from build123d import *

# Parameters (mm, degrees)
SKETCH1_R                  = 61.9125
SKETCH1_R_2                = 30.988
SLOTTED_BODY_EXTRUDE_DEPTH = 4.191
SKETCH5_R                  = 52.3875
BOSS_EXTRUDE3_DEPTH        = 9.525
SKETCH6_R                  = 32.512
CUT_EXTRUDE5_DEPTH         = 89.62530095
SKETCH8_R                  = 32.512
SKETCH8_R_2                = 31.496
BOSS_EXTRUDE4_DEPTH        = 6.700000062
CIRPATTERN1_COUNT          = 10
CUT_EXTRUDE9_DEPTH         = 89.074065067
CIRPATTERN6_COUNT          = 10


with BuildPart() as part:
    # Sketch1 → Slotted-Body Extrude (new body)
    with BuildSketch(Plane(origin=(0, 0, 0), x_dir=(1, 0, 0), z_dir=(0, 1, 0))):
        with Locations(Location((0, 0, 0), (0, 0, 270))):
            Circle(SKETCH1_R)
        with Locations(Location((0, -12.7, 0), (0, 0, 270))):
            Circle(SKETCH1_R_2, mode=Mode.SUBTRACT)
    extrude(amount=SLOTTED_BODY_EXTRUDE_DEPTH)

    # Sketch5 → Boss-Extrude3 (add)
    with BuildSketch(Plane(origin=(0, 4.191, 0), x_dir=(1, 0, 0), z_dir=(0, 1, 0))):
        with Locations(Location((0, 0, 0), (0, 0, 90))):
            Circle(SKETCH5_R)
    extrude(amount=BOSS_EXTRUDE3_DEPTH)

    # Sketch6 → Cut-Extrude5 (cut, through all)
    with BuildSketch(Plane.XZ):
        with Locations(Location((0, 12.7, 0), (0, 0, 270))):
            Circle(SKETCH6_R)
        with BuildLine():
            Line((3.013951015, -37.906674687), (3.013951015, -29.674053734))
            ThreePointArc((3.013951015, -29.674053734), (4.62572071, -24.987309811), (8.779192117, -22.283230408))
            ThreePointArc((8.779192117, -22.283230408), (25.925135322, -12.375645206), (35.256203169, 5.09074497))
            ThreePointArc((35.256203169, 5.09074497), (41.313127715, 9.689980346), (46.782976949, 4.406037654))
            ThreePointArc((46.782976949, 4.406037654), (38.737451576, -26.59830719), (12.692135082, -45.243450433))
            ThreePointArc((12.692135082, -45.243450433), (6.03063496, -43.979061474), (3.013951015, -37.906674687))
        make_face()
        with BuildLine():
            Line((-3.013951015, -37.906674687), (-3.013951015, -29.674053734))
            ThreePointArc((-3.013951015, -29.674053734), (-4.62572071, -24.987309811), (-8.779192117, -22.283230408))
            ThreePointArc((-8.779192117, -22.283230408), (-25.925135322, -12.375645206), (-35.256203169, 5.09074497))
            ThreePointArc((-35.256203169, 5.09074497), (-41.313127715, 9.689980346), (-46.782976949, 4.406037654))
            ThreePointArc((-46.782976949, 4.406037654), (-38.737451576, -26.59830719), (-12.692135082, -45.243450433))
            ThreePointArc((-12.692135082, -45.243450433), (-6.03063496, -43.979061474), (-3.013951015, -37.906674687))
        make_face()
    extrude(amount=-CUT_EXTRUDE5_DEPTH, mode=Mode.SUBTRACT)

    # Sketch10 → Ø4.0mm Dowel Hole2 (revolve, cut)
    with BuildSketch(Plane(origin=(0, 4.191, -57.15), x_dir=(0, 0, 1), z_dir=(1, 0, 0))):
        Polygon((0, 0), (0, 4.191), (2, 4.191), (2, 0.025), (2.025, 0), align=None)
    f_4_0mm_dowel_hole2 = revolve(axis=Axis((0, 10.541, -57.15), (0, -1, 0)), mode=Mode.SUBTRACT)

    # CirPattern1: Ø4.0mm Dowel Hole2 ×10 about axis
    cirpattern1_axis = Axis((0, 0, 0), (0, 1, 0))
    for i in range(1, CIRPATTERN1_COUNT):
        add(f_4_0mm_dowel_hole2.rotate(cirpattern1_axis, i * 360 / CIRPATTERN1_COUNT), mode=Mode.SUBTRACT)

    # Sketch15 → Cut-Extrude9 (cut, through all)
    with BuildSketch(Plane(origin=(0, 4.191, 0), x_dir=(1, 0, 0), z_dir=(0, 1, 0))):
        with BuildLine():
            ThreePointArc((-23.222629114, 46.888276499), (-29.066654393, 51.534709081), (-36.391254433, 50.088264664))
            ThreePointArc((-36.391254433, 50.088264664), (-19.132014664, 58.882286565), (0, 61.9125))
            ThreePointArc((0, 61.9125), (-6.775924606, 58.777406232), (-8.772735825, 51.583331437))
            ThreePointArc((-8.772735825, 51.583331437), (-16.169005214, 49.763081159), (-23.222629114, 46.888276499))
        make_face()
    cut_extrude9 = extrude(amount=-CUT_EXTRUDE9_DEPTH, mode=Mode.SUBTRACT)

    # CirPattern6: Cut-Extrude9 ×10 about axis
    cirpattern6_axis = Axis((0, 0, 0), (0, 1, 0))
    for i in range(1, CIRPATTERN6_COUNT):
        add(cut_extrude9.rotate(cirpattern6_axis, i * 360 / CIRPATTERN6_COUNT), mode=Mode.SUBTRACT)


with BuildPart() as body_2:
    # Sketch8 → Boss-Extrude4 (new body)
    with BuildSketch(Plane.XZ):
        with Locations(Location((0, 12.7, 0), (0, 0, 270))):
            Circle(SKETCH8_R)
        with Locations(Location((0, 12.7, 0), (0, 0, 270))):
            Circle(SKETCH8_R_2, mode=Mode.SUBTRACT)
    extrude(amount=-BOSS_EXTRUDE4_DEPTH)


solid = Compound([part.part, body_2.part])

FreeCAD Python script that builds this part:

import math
import FreeCAD as App
import Part
import Sketcher
Q = App.Units.Quantity


def add_polygon(sketch, points):
    """Adds a closed chain of lines whose ends are joined by coincident constraints."""
    first, n = sketch.GeometryCount, len(points)
    for a, b in zip(points, points[1:] + points[:1]):
        sketch.addGeometry(Part.LineSegment(App.Vector(*a, 0), App.Vector(*b, 0)), False)
    for i in range(n):
        sketch.addConstraint(Sketcher.Constraint("Coincident", first + i, 2, first + (i + 1) % n, 1))

doc = App.newDocument("Part")
params = doc.addObject("Spreadsheet::Sheet", "Params")
for row, (alias, value) in enumerate([
    ("sketch1_diameter", "2.44 in"),
    ("sketch1_diameter2", "4.875 in"),
    ("pad1_length", "0.165 in"),
    ("sketch2_diameter", "4.125 in"),
    ("pad2_length", "0.375 in"),
    ("sketch3_radius", "0.3 in"),
    ("sketch3_diameter", "2.56 in"),
    ("sketch3_radius2", "1.85 in"),
    ("sketch3_radius3", "0.23 in"),
    ("sketch3_radius4", "1.42 in"),
    ("sketch4_width", "0.165 in"),
    ("groove_angle", "360 deg"),
    ("sketch5_radius", "0.35 in"),
    ("sketch5_radius2", "2.06 in"),
    ("sketch5_radius3", "2.4375 in"),
    ("sketch6_diameter", "2.56 in"),
    ("sketch6_diameter2", "2.48 in"),
    ("pad3_length", "6.7 mm"),
], start=1):
    params.set(f"A{row}", alias)
    params.set(f"B{row}", "=" + value)
    params.setAlias(f"B{row}", alias)

body = doc.addObject("PartDesign::Body", "Body")

sketch1 = body.newObject("Sketcher::SketchObject", "Sketch")
sketch1.AttachmentSupport = (doc.getObject("XZ_Plane"), [""])
sketch1.MapMode = "FlatFace"
sketch1.addGeometry(Part.Circle(App.Vector(0, 0, 0), App.Vector(0, 0, 1), 62), False)
sketch1.addGeometry(Part.Circle(App.Vector(0, 13, 0), App.Vector(0, 0, 1), 31), False)
sketch1.addConstraint(Sketcher.Constraint("Coincident", 0, 3, -1, 1))
sketch1.addConstraint(Sketcher.Constraint("PointOnObject", 1, 3, -2))
sketch1.addConstraint(Sketcher.Constraint("Diameter", 1, Q("2.44 in")))
sketch1.addConstraint(Sketcher.Constraint("Diameter", 0, Q("4.875 in")))
sketch1.addConstraint(Sketcher.Constraint("DistanceY", -1, 1, 1, 3, Q("0.5 in")))
sketch1.setExpression("Constraints[2]", "Params.sketch1_diameter")
sketch1.setExpression("Constraints[3]", "Params.sketch1_diameter2")
pad1 = body.newObject("PartDesign::Pad", "Pad")
pad1.Profile = sketch1
pad1.setExpression("Length", "Params.pad1_length")
pad1.Reversed = True

sketch2 = body.newObject("Sketcher::SketchObject", "Sketch001")
sketch2.AttachmentSupport = (doc.getObject("XZ_Plane"), [""])
sketch2.MapMode = "FlatFace"
sketch2.AttachmentOffset = App.Placement(App.Vector(0, 0, -0.165 * 25.4), App.Rotation())
sketch2.addGeometry(Part.Circle(App.Vector(0, 0, 0), App.Vector(0, 0, 1), 52), False)
sketch2.addConstraint(Sketcher.Constraint("Coincident", 0, 3, -1, 1))
sketch2.addConstraint(Sketcher.Constraint("Diameter", 0, Q("4.125 in")))
sketch2.setExpression("Constraints[1]", "Params.sketch2_diameter")
pad2 = body.newObject("PartDesign::Pad", "Pad001")
pad2.Profile = sketch2
pad2.setExpression("Length", "Params.pad2_length")
pad2.Reversed = True

sketch3 = body.newObject("Sketcher::SketchObject", "Sketch002")
sketch3.AttachmentSupport = (doc.getObject("XZ_Plane"), [""])
sketch3.MapMode = "FlatFace"
sketch3.addGeometry(Part.Circle(App.Vector(0, 13, 0), App.Vector(0, 0, 1), 33), False)
sketch3.addGeometry(Part.LineSegment(App.Vector(3, -30, 0), App.Vector(3, -38, 0)), False)
sketch3.addGeometry(Part.ArcOfCircle(Part.Circle(App.Vector(11, -38, 0), App.Vector(0, 0, 1), 8), math.radians(-180), math.radians(-74)), False)
sketch3.addGeometry(Part.ArcOfCircle(Part.Circle(App.Vector(0, 0, 0), App.Vector(0, 0, 1), 47), math.radians(-74), math.radians(5)), False)
sketch3.addGeometry(Part.ArcOfCircle(Part.Circle(App.Vector(41, 4, 0), App.Vector(0, 0, 1), 6), math.radians(5), math.radians(168)), False)
sketch3.addGeometry(Part.ArcOfCircle(Part.Circle(App.Vector(0, 13, 0), App.Vector(0, 0, 1), 36), math.radians(-76), math.radians(-12)), False)
sketch3.addGeometry(Part.ArcOfCircle(Part.Circle(App.Vector(11, -30, 0), App.Vector(0, 0, 1), 8), math.radians(104), math.radians(180)), False)
sketch3.addGeometry(Part.LineSegment(App.Vector(-3, -38, 0), App.Vector(-3, -30, 0)), False)
sketch3.addGeometry(Part.ArcOfCircle(Part.Circle(App.Vector(-11, -30, 0), App.Vector(0, 0, 1), 8), math.radians(0), math.radians(76)), False)
sketch3.addGeometry(Part.ArcOfCircle(Part.Circle(App.Vector(0, 13, 0), App.Vector(0, 0, 1), 36), math.radians(-168), math.radians(-104)), False)
sketch3.addGeometry(Part.ArcOfCircle(Part.Circle(App.Vector(-41, 4, 0), App.Vector(0, 0, 1), 6), math.radians(12), math.radians(175)), False)
sketch3.addGeometry(Part.ArcOfCircle(Part.Circle(App.Vector(0, 0, 0), App.Vector(0, 0, 1), 47), math.radians(175), math.radians(254)), False)
sketch3.addGeometry(Part.ArcOfCircle(Part.Circle(App.Vector(-11, -38, 0), App.Vector(0, 0, 1), 8), math.radians(-106), math.radians(0)), False)
sketch3.addConstraint(Sketcher.Constraint("Tangent", 1, 2, 2, 1))
sketch3.addConstraint(Sketcher.Constraint("Tangent", 2, 2, 3, 1))
sketch3.addConstraint(Sketcher.Constraint("Tangent", 3, 2, 4, 1))
sketch3.addConstraint(Sketcher.Constraint("Tangent", 4, 2, 5, 2))
sketch3.addConstraint(Sketcher.Constraint("Tangent", 5, 1, 6, 1))
sketch3.addConstraint(Sketcher.Constraint("Tangent", 6, 2, 1, 1))
sketch3.addConstraint(Sketcher.Constraint("Tangent", 7, 2, 8, 1))
sketch3.addConstraint(Sketcher.Constraint("Tangent", 8, 2, 9, 2))
sketch3.addConstraint(Sketcher.Constraint("Tangent", 9, 1, 10, 1))
sketch3.addConstraint(Sketcher.Constraint("Tangent", 10, 2, 11, 1))
sketch3.addConstraint(Sketcher.Constraint("Tangent", 11, 2, 12, 1))
sketch3.addConstraint(Sketcher.Constraint("Tangent", 12, 2, 7, 1))
sketch3.addConstraint(Sketcher.Constraint("Vertical", 1))
sketch3.addConstraint(Sketcher.Constraint("Vertical", 7))
sketch3.addConstraint(Sketcher.Constraint("Coincident", 3, 3, -1, 1))
sketch3.addConstraint(Sketcher.Constraint("Coincident", 11, 3, -1, 1))
sketch3.addConstraint(Sketcher.Constraint("Coincident", 5, 3, 0, 3))
sketch3.addConstraint(Sketcher.Constraint("Coincident", 9, 3, 0, 3))
sketch3.addConstraint(Sketcher.Constraint("Equal", 2, 6))
sketch3.addConstraint(Sketcher.Constraint("Equal", 6, 8))
sketch3.addConstraint(Sketcher.Constraint("Equal", 5, 9))
sketch3.addConstraint(Sketcher.Constraint("Equal", 4, 10))
sketch3.addConstraint(Sketcher.Constraint("Equal", 3, 11))
sketch3.addConstraint(Sketcher.Constraint("Equal", 8, 12))
sketch3.addConstraint(Sketcher.Constraint("Symmetric", 6, 3, 8, 3, -2))
sketch3.addConstraint(Sketcher.Constraint("Radius", 2, Q("0.3 in")))
sketch3.addConstraint(Sketcher.Constraint("Diameter", 0, Q("2.56 in")))
sketch3.addConstraint(Sketcher.Constraint("Radius", 3, Q("1.85 in")))
sketch3.addConstraint(Sketcher.Constraint("Radius", 4, Q("0.23 in")))
sketch3.addConstraint(Sketcher.Constraint("Radius", 5, Q("1.42 in")))
sketch3.addConstraint(Sketcher.Constraint("DistanceY", -1, 1, 0, 3, Q("0.5 in")))
sketch3.addConstraint(Sketcher.Constraint("DistanceY", 1, 2, 1, 1, Q("8.232621 mm")))
sketch3.setExpression("Constraints[25]", "Params.sketch3_radius")
sketch3.setExpression("Constraints[26]", "Params.sketch3_diameter")
sketch3.setExpression("Constraints[27]", "Params.sketch3_radius2")
sketch3.setExpression("Constraints[28]", "Params.sketch3_radius3")
sketch3.setExpression("Constraints[29]", "Params.sketch3_radius4")
pocket1 = body.newObject("PartDesign::Pocket", "Pocket")
pocket1.Profile = sketch3
pocket1.Type = "ThroughAll"

sketch4 = body.newObject("Sketcher::SketchObject", "Sketch003")
sketch4.AttachmentSupport = (doc.getObject("YZ_Plane"), [""])
sketch4.MapMode = "FlatFace"
add_polygon(sketch4, [(0, -57.15), (4.191, -57.15), (4.191, -55.125), (4.166, -55.15), (0, -55.15)])
sketch4.addGeometry(Part.LineSegment(App.Vector(4.191, -57.15, 0), App.Vector(0, -57.15, 0)), True)
sketch4.addConstraint(Sketcher.Constraint("Horizontal", 0))
sketch4.addConstraint(Sketcher.Constraint("Vertical", 1))
sketch4.addConstraint(Sketcher.Constraint("Horizontal", 3))
sketch4.addConstraint(Sketcher.Constraint("Vertical", 4))
sketch4.addConstraint(Sketcher.Constraint("Horizontal", 5))
sketch4.addConstraint(Sketcher.Constraint("Coincident", 5, 1, 0, 2))
sketch4.addConstraint(Sketcher.Constraint("PointOnObject", 3, 2, -2))
sketch4.addConstraint(Sketcher.Constraint("PointOnObject", 5, 2, -2))
sketch4.addConstraint(Sketcher.Constraint("Angle", 2, Q("-135 deg")))
sketch4.addConstraint(Sketcher.Constraint("DistanceX", 0, 1, 0, 2, Q("0.165 in")))
sketch4.addConstraint(Sketcher.Constraint("DistanceY", 0, 2, -1, 1, Q("2.25 in")))
sketch4.addConstraint(Sketcher.Constraint("DistanceX", 3, 2, 3, 1, Q("4.166 mm")))
sketch4.addConstraint(Sketcher.Constraint("DistanceY", 1, 1, 1, 2, Q("2.025 mm")))
sketch4.setExpression("Constraints[14]", "Params.sketch4_width")
groove = body.newObject("PartDesign::Groove", "Groove")
groove.Profile = sketch4
groove.ReferenceAxis = (sketch4, ["Axis0"])
groove.setExpression("Angle", "Params.groove_angle")
doc.recompute()

polarpattern = body.newObject("PartDesign::PolarPattern", "PolarPattern")
polarpattern.Originals = [groove]
polarpattern.Axis = (doc.getObject("Y_Axis"), [""])
polarpattern.Angle = 360
polarpattern.Occurrences = 10
body.Tip = polarpattern

sketch5 = body.newObject("Sketcher::SketchObject", "Sketch004")
sketch5.AttachmentSupport = (doc.getObject("XZ_Plane"), [""])
sketch5.MapMode = "FlatFace"
sketch5.AttachmentOffset = App.Placement(App.Vector(0, 0, -0.165 * 25.4), App.Rotation())
sketch5.addGeometry(Part.ArcOfCircle(Part.Circle(App.Vector(-31, -43, 0), App.Vector(0, 0, 1), 9), math.radians(-126), math.radians(-27)), False)
sketch5.addGeometry(Part.ArcOfCircle(Part.Circle(App.Vector(0, 0, 0), App.Vector(0, 0, 1), 52), math.radians(-116.35), math.radians(-99.65)), False)
sketch5.addGeometry(Part.ArcOfCircle(Part.Circle(App.Vector(0, -53, 0), App.Vector(0, 0, 1), 9), math.radians(171), math.radians(270)), False)
sketch5.addGeometry(Part.ArcOfCircle(Part.Circle(App.Vector(0, 0, 0), App.Vector(0, 0, 1), 62), math.radians(-126), math.radians(-90)), False)
sketch5.addConstraint(Sketcher.Constraint("Coincident", 0, 2, 1, 1))
sketch5.addConstraint(Sketcher.Constraint("Coincident", 1, 2, 2, 1))
sketch5.addConstraint(Sketcher.Constraint("Tangent", 2, 2, 3, 2))
sketch5.addConstraint(Sketcher.Constraint("Tangent", 3, 1, 0, 1))
sketch5.addConstraint(Sketcher.Constraint("Coincident", 1, 3, -1, 1))
sketch5.addConstraint(Sketcher.Constraint("Coincident", 3, 3, -1, 1))
sketch5.addConstraint(Sketcher.Constraint("Equal", 0, 2))
sketch5.addConstraint(Sketcher.Constraint("PointOnObject", 2, 3, -2))
sketch5.addConstraint(Sketcher.Constraint("Radius", 0, Q("0.35 in")))
sketch5.addConstraint(Sketcher.Constraint("Radius", 1, Q("2.06 in")))
sketch5.addConstraint(Sketcher.Constraint("Radius", 3, Q("2.4375 in")))
sketch5.addConstraint(Sketcher.Constraint("DistanceX", 0, 2, -1, 1, Q("23.222629 mm")))
sketch5.setExpression("Constraints[8]", "Params.sketch5_radius")
sketch5.setExpression("Constraints[9]", "Params.sketch5_radius2")
sketch5.setExpression("Constraints[10]", "Params.sketch5_radius3")
pocket2 = body.newObject("PartDesign::Pocket", "Pocket001")
pocket2.Profile = sketch5
pocket2.Type = "ThroughAll"
pocket2.Reversed = True
doc.recompute()

polarpattern2 = body.newObject("PartDesign::PolarPattern", "PolarPattern001")
polarpattern2.Originals = [pocket2]
polarpattern2.Axis = (doc.getObject("Y_Axis"), [""])
polarpattern2.Angle = 360
polarpattern2.Occurrences = 10
body.Tip = polarpattern2
body2 = doc.addObject("PartDesign::Body", "Body001")

sketch6 = body2.newObject("Sketcher::SketchObject", "Sketch005")
sketch6.AttachmentSupport = (doc.getObject("XZ_Plane001"), [""])
sketch6.MapMode = "FlatFace"
sketch6.addGeometry(Part.Circle(App.Vector(0, 13, 0), App.Vector(0, 0, 1), 33), False)
sketch6.addGeometry(Part.Circle(App.Vector(0, 13, 0), App.Vector(0, 0, 1), 31), False)
sketch6.addConstraint(Sketcher.Constraint("Coincident", 1, 3, 0, 3))
sketch6.addConstraint(Sketcher.Constraint("PointOnObject", 0, 3, -2))
sketch6.addConstraint(Sketcher.Constraint("Diameter", 0, Q("2.56 in")))
sketch6.addConstraint(Sketcher.Constraint("Diameter", 1, Q("2.48 in")))
sketch6.addConstraint(Sketcher.Constraint("DistanceY", -1, 1, 0, 3, Q("0.5 in")))
sketch6.setExpression("Constraints[2]", "Params.sketch6_diameter")
sketch6.setExpression("Constraints[3]", "Params.sketch6_diameter2")
pad3 = body2.newObject("PartDesign::Pad", "Pad002")
pad3.Profile = sketch6
pad3.setExpression("Length", "Params.pad3_length")
pad3.Reversed = True

doc.recompute()
